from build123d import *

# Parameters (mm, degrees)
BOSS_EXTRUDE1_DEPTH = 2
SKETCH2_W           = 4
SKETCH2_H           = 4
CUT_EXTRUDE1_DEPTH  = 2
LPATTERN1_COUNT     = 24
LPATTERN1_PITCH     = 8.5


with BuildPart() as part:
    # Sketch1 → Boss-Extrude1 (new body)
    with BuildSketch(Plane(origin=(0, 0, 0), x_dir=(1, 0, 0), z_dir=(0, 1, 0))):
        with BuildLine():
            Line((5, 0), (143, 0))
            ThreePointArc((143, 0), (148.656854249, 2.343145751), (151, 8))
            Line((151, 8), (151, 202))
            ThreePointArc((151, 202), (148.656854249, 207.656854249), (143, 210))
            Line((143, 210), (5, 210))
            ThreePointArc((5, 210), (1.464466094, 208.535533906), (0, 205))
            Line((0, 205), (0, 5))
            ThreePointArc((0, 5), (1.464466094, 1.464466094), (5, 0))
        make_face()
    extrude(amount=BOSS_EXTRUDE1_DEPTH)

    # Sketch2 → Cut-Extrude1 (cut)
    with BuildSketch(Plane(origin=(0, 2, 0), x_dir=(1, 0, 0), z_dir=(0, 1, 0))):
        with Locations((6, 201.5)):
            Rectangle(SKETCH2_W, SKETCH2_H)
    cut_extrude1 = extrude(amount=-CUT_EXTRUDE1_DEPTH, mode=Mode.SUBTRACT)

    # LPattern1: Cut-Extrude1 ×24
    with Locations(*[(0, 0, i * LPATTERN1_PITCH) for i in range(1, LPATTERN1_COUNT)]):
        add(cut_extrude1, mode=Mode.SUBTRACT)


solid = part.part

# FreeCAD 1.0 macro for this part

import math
import FreeCAD as App
import Part
import Sketcher

V = App.Vector


def add_polygon(sketch, points):
    """Adds a closed chain of lines whose ends are joined by coincident constraints."""
    first, n = sketch.GeometryCount, len(points)
    for a, b in zip(points, points[1:] + points[:1]):
        sketch.addGeometry(Part.LineSegment(App.Vector(*a, 0), App.Vector(*b, 0)), False)
    for i in range(n):
        sketch.addConstraint(Sketcher.Constraint("Coincident", first + i, 2, first + (i + 1) % n, 1))

doc = App.newDocument("Part")
params = doc.addObject("Spreadsheet::Sheet", "Params")
for row, (alias, value) in enumerate([
    ("sketch1_radius", "8 mm"),
    ("sketch1_radius2", "5 mm"),
    ("sketch1_width", "138 mm"),
    ("sketch1_height", "194 mm"),
    ("pad1_length", "2 mm"),
    ("sketch2_width", "4 mm"),
    ("pocket1_length", "2 mm"),
    ("linearpattern_pitch", "8.5 mm"),
], start=1):
    params.set(f"A{row}", alias)
    params.set(f"B{row}", "=" + value)
    params.setAlias(f"B{row}", alias)

body = doc.addObject("PartDesign::Body", "Body")

sketch1 = body.newObject("Sketcher::SketchObject", "Sketch")
sketch1.AttachmentSupport = (doc.getObject("XZ_Plane"), [""])
sketch1.MapMode = "FlatFace"
sketch1.addGeometry([
    Part.LineSegment(V(5, 0, 0), V(143, 0, 0)),
    Part.ArcOfCircle(Part.Circle(V(143, -8, 0), V(0, 0, 1), 8), math.radians(0), math.radians(90)),
    Part.LineSegment(V(151, -8, 0), V(151, -202, 0)),
    Part.ArcOfCircle(Part.Circle(V(143, -202, 0), V(0, 0, 1), 8), math.radians(-90), math.radians(0)),
    Part.LineSegment(V(143, -210, 0), V(5, -210, 0)),
    Part.ArcOfCircle(Part.Circle(V(5, -205, 0), V(0, 0, 1), 5), math.radians(180), math.radians(270)),
    Part.LineSegment(V(0, -205, 0), V(0, -5, 0)),
    Part.ArcOfCircle(Part.Circle(V(5, -5, 0), V(0, 0, 1), 5), math.radians(90), math.radians(180)),
], False)
sketch1.addConstraint([
    Sketcher.Constraint("Tangent", 0, 2, 1, 2),
    Sketcher.Constraint("Tangent", 1, 1, 2, 1),
    Sketcher.Constraint("Tangent", 2, 2, 3, 2),
    Sketcher.Constraint("Tangent", 3, 1, 4, 1),
    Sketcher.Constraint("Tangent", 4, 2, 5, 2),
    Sketcher.Constraint("Tangent", 5, 1, 6, 1),
    Sketcher.Constraint("Tangent", 6, 2, 7, 2),
    Sketcher.Constraint("Tangent", 7, 1, 0, 1),
    Sketcher.Constraint("Horizontal", 0),
    Sketcher.Constraint("Vertical", 2),
    Sketcher.Constraint("Horizontal", 4),
    Sketcher.Constraint("Vertical", 6),
    Sketcher.Constraint("Equal", 1, 3),
    Sketcher.Constraint("Equal", 5, 7),
    Sketcher.Constraint("PointOnObject", 0, 2, -1),
    Sketcher.Constraint("PointOnObject", 5, 1, -2),
    Sketcher.Constraint("Radius", 1, 8.0),
    Sketcher.Constraint("Radius", 5, 5.0),
    Sketcher.Constraint("DistanceX", 0, 1, 0, 2, 138.0),
    Sketcher.Constraint("DistanceY", 2, 2, 2, 1, 194.0),
])
sketch1.setExpression("Constraints[16]", "Params.sketch1_radius")
sketch1.setExpression("Constraints[17]", "Params.sketch1_radius2")
sketch1.setExpression("Constraints[18]", "Params.sketch1_width")
sketch1.setExpression("Constraints[19]", "Params.sketch1_height")
pad1 = body.newObject("PartDesign::Pad", "Pad")
pad1.Profile = sketch1
pad1.setExpression("Length", "Params.pad1_length")
pad1.Reversed = True

sketch2 = body.newObject("Sketcher::SketchObject", "Sketch001")
sketch2.AttachmentSupport = (doc.getObject("XZ_Plane"), [""])
sketch2.MapMode = "FlatFace"
sketch2.AttachmentOffset = App.Placement(V(0, 0, -2), App.Rotation())
add_polygon(sketch2, [(4, -203.5), (4, -199.5), (8, -199.5), (8, -203.5)])
sketch2.addConstraint([
    Sketcher.Constraint("Vertical", 0),
    Sketcher.Constraint("Horizontal", 1),
    Sketcher.Constraint("Vertical", 2),
    Sketcher.Constraint("Horizontal", 3),
    Sketcher.Constraint("Equal", 3, 0),
    Sketcher.Constraint("DistanceX", 1, 1, 1, 2, 4.0),
    Sketcher.Constraint("DistanceX", -1, 1, 0, 2, 4.0),
    Sketcher.Constraint("DistanceY", 0, 2, -1, 1, 199.5),
])
sketch2.setExpression("Constraints[9]", "Params.sketch2_width")
pocket1 = body.newObject("PartDesign::Pocket", "Pocket")
pocket1.Profile = sketch2
pocket1.setExpression("Length", "Params.pocket1_length")
pocket1.Reversed = True
doc.recompute()

linearpattern = body.newObject("PartDesign::LinearPattern", "LinearPattern")
linearpattern.Originals = [pocket1]
linearpattern.Direction = (doc.getObject("Z_Axis"), [""])
linearpattern.Mode = "offset"
linearpattern.setExpression("Offset", "Params.linearpattern_pitch")
linearpattern.Occurrences = 24
body.Tip = linearpattern

doc.recompute()
